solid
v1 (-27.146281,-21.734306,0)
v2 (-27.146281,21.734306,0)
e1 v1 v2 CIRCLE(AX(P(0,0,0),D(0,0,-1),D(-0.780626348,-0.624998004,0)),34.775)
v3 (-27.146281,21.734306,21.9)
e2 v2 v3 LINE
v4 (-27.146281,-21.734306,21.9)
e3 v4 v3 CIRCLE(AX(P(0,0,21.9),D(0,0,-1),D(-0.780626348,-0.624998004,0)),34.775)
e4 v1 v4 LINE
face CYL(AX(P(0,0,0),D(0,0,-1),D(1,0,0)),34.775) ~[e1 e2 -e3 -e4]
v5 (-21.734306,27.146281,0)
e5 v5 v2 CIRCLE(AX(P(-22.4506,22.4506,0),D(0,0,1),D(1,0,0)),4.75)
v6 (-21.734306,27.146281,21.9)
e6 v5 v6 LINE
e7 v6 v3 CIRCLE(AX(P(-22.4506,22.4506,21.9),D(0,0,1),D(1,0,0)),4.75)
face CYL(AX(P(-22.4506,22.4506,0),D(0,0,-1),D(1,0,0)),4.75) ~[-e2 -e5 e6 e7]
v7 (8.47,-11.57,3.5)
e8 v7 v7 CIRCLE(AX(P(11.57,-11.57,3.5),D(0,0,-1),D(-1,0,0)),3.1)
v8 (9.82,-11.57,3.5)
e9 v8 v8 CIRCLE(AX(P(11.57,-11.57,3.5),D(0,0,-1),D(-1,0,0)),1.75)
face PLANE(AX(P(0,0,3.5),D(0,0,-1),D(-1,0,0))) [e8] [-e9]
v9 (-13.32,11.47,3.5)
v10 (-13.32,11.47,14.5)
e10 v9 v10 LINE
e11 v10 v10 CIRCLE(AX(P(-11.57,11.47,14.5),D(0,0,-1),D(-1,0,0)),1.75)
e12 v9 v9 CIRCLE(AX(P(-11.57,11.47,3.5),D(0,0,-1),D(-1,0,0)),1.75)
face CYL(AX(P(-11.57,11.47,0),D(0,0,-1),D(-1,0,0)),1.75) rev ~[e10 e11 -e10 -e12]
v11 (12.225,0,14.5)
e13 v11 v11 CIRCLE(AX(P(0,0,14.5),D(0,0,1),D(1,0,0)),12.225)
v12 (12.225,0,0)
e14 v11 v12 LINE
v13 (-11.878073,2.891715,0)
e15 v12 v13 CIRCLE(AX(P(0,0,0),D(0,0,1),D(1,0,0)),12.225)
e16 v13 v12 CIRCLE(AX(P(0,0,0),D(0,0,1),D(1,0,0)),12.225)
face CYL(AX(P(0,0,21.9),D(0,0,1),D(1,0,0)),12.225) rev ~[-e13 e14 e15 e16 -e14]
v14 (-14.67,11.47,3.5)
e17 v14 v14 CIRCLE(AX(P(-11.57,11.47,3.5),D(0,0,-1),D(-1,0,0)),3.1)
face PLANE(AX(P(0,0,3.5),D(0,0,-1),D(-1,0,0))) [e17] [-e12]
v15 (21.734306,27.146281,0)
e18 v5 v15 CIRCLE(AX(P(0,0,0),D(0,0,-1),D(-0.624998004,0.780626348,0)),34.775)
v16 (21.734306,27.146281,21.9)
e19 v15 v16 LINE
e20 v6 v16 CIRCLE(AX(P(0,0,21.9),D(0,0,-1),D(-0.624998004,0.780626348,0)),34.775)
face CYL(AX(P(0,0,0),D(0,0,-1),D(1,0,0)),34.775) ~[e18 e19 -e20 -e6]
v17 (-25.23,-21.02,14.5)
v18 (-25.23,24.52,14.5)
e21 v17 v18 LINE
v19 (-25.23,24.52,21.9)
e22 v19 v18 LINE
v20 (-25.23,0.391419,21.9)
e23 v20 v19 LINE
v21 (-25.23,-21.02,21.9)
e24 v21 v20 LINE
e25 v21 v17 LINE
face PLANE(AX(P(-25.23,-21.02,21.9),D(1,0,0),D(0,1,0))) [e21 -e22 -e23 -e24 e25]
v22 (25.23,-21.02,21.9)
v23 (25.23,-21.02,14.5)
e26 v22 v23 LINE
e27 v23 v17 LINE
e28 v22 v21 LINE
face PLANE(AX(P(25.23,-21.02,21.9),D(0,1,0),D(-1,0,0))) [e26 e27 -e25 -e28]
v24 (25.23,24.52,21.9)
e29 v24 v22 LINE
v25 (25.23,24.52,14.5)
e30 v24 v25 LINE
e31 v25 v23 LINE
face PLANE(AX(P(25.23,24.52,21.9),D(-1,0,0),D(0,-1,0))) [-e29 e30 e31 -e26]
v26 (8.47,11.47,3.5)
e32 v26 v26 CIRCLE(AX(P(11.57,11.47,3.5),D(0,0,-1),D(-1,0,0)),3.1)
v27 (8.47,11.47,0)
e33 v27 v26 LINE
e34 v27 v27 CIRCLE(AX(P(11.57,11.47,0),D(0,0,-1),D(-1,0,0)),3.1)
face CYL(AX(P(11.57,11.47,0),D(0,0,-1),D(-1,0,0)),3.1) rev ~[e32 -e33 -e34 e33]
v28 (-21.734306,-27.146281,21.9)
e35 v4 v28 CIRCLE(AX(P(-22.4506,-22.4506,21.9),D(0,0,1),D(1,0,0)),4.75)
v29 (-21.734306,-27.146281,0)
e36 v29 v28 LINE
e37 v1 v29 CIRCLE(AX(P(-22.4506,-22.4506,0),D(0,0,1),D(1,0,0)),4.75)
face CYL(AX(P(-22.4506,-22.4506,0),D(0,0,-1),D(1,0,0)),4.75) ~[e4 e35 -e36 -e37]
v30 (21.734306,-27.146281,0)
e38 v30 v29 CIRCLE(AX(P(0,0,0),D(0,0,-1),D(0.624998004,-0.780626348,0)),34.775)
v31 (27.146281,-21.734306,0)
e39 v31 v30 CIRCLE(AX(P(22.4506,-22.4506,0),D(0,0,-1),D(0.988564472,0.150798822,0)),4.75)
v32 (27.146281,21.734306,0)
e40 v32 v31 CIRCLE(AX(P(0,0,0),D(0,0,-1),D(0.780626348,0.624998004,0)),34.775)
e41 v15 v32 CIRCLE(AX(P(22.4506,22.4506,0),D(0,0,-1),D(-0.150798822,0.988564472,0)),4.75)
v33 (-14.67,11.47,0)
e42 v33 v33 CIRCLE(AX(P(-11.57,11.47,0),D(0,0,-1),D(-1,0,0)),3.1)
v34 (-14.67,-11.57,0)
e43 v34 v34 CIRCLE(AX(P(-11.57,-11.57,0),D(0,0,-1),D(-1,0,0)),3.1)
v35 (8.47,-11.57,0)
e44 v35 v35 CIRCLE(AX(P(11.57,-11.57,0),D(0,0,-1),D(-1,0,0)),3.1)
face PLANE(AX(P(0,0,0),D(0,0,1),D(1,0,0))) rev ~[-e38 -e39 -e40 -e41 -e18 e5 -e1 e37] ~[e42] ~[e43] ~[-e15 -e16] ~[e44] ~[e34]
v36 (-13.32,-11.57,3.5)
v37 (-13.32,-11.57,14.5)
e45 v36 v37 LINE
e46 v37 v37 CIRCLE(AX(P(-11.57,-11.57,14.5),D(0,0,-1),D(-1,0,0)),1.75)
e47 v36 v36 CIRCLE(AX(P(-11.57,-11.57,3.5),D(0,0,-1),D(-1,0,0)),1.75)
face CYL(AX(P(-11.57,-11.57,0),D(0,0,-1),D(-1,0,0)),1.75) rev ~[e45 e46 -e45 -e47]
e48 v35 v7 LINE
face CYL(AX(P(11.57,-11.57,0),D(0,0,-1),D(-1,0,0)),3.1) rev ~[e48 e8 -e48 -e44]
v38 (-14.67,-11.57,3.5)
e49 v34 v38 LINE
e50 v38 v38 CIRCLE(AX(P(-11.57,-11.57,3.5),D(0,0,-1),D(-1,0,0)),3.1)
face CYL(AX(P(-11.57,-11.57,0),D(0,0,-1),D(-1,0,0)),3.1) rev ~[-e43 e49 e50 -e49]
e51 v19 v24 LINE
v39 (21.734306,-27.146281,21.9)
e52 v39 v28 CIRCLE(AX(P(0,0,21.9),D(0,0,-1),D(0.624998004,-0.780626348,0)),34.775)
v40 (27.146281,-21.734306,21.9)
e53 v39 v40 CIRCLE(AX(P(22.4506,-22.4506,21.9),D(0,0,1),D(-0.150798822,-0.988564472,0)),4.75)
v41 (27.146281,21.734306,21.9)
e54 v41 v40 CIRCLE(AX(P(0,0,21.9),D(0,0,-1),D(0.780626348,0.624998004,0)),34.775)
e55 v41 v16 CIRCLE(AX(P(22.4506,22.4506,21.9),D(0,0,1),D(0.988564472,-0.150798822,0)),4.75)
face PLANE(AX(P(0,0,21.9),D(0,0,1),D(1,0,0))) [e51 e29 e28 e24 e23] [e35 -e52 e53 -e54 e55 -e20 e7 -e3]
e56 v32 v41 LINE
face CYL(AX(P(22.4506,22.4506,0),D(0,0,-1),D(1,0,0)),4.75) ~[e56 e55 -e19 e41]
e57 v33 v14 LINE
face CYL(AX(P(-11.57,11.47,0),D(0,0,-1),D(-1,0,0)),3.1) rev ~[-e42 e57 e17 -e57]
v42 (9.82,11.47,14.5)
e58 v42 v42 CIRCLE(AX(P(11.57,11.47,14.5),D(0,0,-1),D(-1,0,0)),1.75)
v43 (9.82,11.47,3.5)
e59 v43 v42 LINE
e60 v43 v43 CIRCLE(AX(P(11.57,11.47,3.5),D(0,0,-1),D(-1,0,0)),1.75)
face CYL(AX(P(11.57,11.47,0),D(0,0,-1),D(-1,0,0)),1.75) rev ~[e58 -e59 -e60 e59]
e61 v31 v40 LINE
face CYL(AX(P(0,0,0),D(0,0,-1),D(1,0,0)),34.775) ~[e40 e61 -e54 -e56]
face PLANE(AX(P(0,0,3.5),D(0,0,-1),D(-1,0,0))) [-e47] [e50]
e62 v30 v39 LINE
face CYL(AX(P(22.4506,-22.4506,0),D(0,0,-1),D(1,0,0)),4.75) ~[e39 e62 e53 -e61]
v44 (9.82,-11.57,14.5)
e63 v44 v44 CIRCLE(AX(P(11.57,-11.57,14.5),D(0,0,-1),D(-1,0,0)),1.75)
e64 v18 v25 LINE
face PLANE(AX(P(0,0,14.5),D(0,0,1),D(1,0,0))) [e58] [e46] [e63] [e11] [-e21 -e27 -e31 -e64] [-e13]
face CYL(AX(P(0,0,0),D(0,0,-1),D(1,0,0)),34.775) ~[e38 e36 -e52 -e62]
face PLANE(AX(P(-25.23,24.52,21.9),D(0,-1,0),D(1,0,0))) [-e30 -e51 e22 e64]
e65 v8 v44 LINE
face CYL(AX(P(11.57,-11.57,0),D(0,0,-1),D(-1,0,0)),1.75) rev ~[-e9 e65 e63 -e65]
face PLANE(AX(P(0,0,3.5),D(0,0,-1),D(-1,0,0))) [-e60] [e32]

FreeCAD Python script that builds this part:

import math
import FreeCAD as App
import Part
import Sketcher
Q = App.Units.Quantity


def add_polygon(sketch, points):
    """Adds a closed chain of lines whose ends are joined by coincident constraints."""
    first, n = sketch.GeometryCount, len(points)
    for a, b in zip(points, points[1:] + points[:1]):
        sketch.addGeometry(Part.LineSegment(App.Vector(*a, 0), App.Vector(*b, 0)), False)
    for i in range(n):
        sketch.addConstraint(Sketcher.Constraint("Coincident", first + i, 2, first + (i + 1) % n, 1))

doc = App.newDocument("Part")
body = doc.addObject("PartDesign::Body", "Body")

sketch1 = doc.addObject("Sketcher::SketchObject", "Sketch")
body.addObject(sketch1)
sketch1.AttachmentSupport = (doc.XY_Plane, [""])
sketch1.MapMode = "FlatFace"
sketch1.addGeometry([
    Part.ArcOfCircle(Part.Circle(App.Vector(-22.5, -22.5, 0), App.Vector(0, 0, 1), 4.8), math.radians(171), math.radians(279)),
    Part.ArcOfCircle(Part.Circle(App.Vector(0, 0, 0), App.Vector(0, 0, 1), 34.8), math.radians(-129), math.radians(-51)),
    Part.ArcOfCircle(Part.Circle(App.Vector(22.5, -22.5, 0), App.Vector(0, 0, 1), 4.8), math.radians(-99), math.radians(9)),
    Part.ArcOfCircle(Part.Circle(App.Vector(0, 0, 0), App.Vector(0, 0, 1), 34.8), math.radians(-39), math.radians(39)),
    Part.ArcOfCircle(Part.Circle(App.Vector(22.5, 22.5, 0), App.Vector(0, 0, 1), 4.8), math.radians(-9), math.radians(99)),
    Part.ArcOfCircle(Part.Circle(App.Vector(0, 0, 0), App.Vector(0, 0, 1), 34.8), math.radians(51), math.radians(129)),
    Part.ArcOfCircle(Part.Circle(App.Vector(-22.5, 22.5, 0), App.Vector(0, 0, 1), 4.8), math.radians(81), math.radians(189)),
    Part.ArcOfCircle(Part.Circle(App.Vector(0, 0, 0), App.Vector(0, 0, 1), 34.8), math.radians(141), math.radians(219)),
], False)
sketch1.addConstraint([
    Sketcher.Constraint("Coincident", 0, 2, 1, 1),
    Sketcher.Constraint("Coincident", 1, 2, 2, 1),
    Sketcher.Constraint("Coincident", 2, 2, 3, 1),
    Sketcher.Constraint("Coincident", 3, 2, 4, 1),
    Sketcher.Constraint("Coincident", 4, 2, 5, 1),
    Sketcher.Constraint("Coincident", 5, 2, 6, 1),
    Sketcher.Constraint("Coincident", 6, 2, 7, 1),
    Sketcher.Constraint("Coincident", 7, 2, 0, 1),
    Sketcher.Constraint("Coincident", 1, 3, -1, 1),
    Sketcher.Constraint("Coincident", 3, 3, -1, 1),
    Sketcher.Constraint("Coincident", 5, 3, -1, 1),
    Sketcher.Constraint("Coincident", 7, 3, -1, 1),
    Sketcher.Constraint("Equal", 0, 2),
    Sketcher.Constraint("Equal", 1, 3),
    Sketcher.Constraint("Equal", 2, 4),
    Sketcher.Constraint("Equal", 3, 5),
    Sketcher.Constraint("Equal", 4, 6),
    Sketcher.Constraint("Equal", 5, 7),
    Sketcher.Constraint("Symmetric", 0, 3, 4, 3, -1, 1),
    Sketcher.Constraint("Symmetric", 2, 3, 6, 3, -1, 1),
    Sketcher.Constraint("Symmetric", 0, 3, 2, 3, -2),
    Sketcher.Constraint("Radius", 0, Q("4.75 mm")),
    Sketcher.Constraint("Radius", 1, Q("34.775 mm")),
    Sketcher.Constraint("DistanceX", 1, 2, 2, 2, Q("5.412 mm")),
    Sketcher.Constraint("DistanceY", 1, 2, 2, 2, Q("5.412 mm")),
])
pad1 = doc.addObject("PartDesign::Pad", "Pad")
body.addObject(pad1)
pad1.Profile = sketch1
pad1.Length = 21.9

sketch2 = doc.addObject("Sketcher::SketchObject", "Sketch001")
body.addObject(sketch2)
sketch2.AttachmentSupport = (doc.XY_Plane, [""])
sketch2.MapMode = "FlatFace"
sketch2.AttachmentOffset = App.Placement(App.Vector(0, 0, 21.9), App.Rotation())
sketch2.addGeometry(Part.Circle(App.Vector(0, 0, 0), App.Vector(0, 0, 1), 12), False)
sketch2.addConstraint([
    Sketcher.Constraint("Coincident", 0, 3, -1, 1),
    Sketcher.Constraint("Diameter", 0, Q("24.45 mm")),
])
pocket1 = doc.addObject("PartDesign::Pocket", "Pocket")
body.addObject(pocket1)
pocket1.Profile = sketch2
pocket1.Type = "ThroughAll"

sketch3 = doc.addObject("Sketcher::SketchObject", "Sketch002")
body.addObject(sketch3)
sketch3.AttachmentSupport = (doc.XY_Plane, [""])
sketch3.MapMode = "FlatFace"
sketch3.AttachmentOffset = App.Placement(App.Vector(0, 0, 21.9), App.Rotation())
add_polygon(sketch3, [(25, 25), (-25, 25), (-25, -21), (25, -21)])
sketch3.addConstraint([
    Sketcher.Constraint("Horizontal", 0),
    Sketcher.Constraint("Vertical", 1),
    Sketcher.Constraint("Horizontal", 2),
    Sketcher.Constraint("Vertical", 3),
    Sketcher.Constraint("DistanceX", 0, 2, 0, 1, Q("50.46 mm")),
    Sketcher.Constraint("DistanceY", 1, 2, 1, 1, Q("45.54 mm")),
    Sketcher.Constraint("DistanceX", 0, 2, -1, 1, Q("25.23 mm")),
    Sketcher.Constraint("DistanceY", -1, 1, 0, 2, Q("24.52 mm")),
])
pocket2 = doc.addObject("PartDesign::Pocket", "Pocket001")
body.addObject(pocket2)
pocket2.Profile = sketch3
pocket2.Length = 7.4

sketch4 = doc.addObject("Sketcher::SketchObject", "Sketch003")
body.addObject(sketch4)
sketch4.AttachmentSupport = (doc.XY_Plane, [""])
sketch4.MapMode = "FlatFace"
sketch4.addGeometry([
    Part.Circle(App.Vector(-11.6, 11.5, 0), App.Vector(0, 0, 1), 1.8),
    Part.Circle(App.Vector(-11.6, -11.6, 0), App.Vector(0, 0, 1), 1.8),
    Part.Circle(App.Vector(11.6, 11.5, 0), App.Vector(0, 0, 1), 1.8),
    Part.Circle(App.Vector(11.6, -11.6, 0), App.Vector(0, 0, 1), 1.8),
], False)
sketch4.addConstraint([
    Sketcher.Constraint("Equal", 0, 1),
    Sketcher.Constraint("Equal", 1, 2),
    Sketcher.Constraint("Equal", 2, 3),
    Sketcher.Constraint("Symmetric", 0, 3, 2, 3, -2),
    Sketcher.Constraint("Symmetric", 1, 3, 3, 3, -2),
    Sketcher.Constraint("Vertical", 0, 3, 1, 3),
    Sketcher.Constraint("Diameter", 0, Q("3.5 mm")),
    Sketcher.Constraint("DistanceX", 0, 3, 2, 3, Q("23.14 mm")),
    Sketcher.Constraint("DistanceY", -1, 1, 0, 3, Q("11.47 mm")),
    Sketcher.Constraint("DistanceY", 1, 3, -1, 1, Q("11.57 mm")),
])
pocket3 = doc.addObject("PartDesign::Pocket", "Pocket002")
body.addObject(pocket3)
pocket3.Profile = sketch4
pocket3.Type = "ThroughAll"
pocket3.Reversed = True

sketch5 = doc.addObject("Sketcher::SketchObject", "Sketch004")
body.addObject(sketch5)
sketch5.AttachmentSupport = (doc.XY_Plane, [""])
sketch5.MapMode = "FlatFace"
sketch5.addGeometry([
    Part.Circle(App.Vector(11.6, 11.5, 0), App.Vector(0, 0, 1), 3.1),
    Part.Circle(App.Vector(-11.6, 11.5, 0), App.Vector(0, 0, 1), 3.1),
    Part.Circle(App.Vector(-11.6, -11.6, 0), App.Vector(0, 0, 1), 3.1),
    Part.Circle(App.Vector(11.6, -11.6, 0), App.Vector(0, 0, 1), 3.1),
], False)
sketch5.addConstraint([
    Sketcher.Constraint("Equal", 0, 1),
    Sketcher.Constraint("Equal", 1, 2),
    Sketcher.Constraint("Equal", 2, 3),
    Sketcher.Constraint("Symmetric", 0, 3, 1, 3, -2),
    Sketcher.Constraint("Symmetric", 2, 3, 3, 3, -2),
    Sketcher.Constraint("Vertical", 1, 3, 2, 3),
    Sketcher.Constraint("Diameter", 0, Q("6.2 mm")),
    Sketcher.Constraint("DistanceX", -1, 1, 0, 3, Q("11.57 mm")),
    Sketcher.Constraint("DistanceY", -1, 1, 0, 3, Q("11.47 mm")),
    Sketcher.Constraint("DistanceY", 2, 3, -1, 1, Q("11.57 mm")),
])
pocket4 = doc.addObject("PartDesign::Pocket", "Pocket003")
body.addObject(pocket4)
pocket4.Profile = sketch5
pocket4.Length = 3.5
pocket4.Reversed = True

doc.recompute()
